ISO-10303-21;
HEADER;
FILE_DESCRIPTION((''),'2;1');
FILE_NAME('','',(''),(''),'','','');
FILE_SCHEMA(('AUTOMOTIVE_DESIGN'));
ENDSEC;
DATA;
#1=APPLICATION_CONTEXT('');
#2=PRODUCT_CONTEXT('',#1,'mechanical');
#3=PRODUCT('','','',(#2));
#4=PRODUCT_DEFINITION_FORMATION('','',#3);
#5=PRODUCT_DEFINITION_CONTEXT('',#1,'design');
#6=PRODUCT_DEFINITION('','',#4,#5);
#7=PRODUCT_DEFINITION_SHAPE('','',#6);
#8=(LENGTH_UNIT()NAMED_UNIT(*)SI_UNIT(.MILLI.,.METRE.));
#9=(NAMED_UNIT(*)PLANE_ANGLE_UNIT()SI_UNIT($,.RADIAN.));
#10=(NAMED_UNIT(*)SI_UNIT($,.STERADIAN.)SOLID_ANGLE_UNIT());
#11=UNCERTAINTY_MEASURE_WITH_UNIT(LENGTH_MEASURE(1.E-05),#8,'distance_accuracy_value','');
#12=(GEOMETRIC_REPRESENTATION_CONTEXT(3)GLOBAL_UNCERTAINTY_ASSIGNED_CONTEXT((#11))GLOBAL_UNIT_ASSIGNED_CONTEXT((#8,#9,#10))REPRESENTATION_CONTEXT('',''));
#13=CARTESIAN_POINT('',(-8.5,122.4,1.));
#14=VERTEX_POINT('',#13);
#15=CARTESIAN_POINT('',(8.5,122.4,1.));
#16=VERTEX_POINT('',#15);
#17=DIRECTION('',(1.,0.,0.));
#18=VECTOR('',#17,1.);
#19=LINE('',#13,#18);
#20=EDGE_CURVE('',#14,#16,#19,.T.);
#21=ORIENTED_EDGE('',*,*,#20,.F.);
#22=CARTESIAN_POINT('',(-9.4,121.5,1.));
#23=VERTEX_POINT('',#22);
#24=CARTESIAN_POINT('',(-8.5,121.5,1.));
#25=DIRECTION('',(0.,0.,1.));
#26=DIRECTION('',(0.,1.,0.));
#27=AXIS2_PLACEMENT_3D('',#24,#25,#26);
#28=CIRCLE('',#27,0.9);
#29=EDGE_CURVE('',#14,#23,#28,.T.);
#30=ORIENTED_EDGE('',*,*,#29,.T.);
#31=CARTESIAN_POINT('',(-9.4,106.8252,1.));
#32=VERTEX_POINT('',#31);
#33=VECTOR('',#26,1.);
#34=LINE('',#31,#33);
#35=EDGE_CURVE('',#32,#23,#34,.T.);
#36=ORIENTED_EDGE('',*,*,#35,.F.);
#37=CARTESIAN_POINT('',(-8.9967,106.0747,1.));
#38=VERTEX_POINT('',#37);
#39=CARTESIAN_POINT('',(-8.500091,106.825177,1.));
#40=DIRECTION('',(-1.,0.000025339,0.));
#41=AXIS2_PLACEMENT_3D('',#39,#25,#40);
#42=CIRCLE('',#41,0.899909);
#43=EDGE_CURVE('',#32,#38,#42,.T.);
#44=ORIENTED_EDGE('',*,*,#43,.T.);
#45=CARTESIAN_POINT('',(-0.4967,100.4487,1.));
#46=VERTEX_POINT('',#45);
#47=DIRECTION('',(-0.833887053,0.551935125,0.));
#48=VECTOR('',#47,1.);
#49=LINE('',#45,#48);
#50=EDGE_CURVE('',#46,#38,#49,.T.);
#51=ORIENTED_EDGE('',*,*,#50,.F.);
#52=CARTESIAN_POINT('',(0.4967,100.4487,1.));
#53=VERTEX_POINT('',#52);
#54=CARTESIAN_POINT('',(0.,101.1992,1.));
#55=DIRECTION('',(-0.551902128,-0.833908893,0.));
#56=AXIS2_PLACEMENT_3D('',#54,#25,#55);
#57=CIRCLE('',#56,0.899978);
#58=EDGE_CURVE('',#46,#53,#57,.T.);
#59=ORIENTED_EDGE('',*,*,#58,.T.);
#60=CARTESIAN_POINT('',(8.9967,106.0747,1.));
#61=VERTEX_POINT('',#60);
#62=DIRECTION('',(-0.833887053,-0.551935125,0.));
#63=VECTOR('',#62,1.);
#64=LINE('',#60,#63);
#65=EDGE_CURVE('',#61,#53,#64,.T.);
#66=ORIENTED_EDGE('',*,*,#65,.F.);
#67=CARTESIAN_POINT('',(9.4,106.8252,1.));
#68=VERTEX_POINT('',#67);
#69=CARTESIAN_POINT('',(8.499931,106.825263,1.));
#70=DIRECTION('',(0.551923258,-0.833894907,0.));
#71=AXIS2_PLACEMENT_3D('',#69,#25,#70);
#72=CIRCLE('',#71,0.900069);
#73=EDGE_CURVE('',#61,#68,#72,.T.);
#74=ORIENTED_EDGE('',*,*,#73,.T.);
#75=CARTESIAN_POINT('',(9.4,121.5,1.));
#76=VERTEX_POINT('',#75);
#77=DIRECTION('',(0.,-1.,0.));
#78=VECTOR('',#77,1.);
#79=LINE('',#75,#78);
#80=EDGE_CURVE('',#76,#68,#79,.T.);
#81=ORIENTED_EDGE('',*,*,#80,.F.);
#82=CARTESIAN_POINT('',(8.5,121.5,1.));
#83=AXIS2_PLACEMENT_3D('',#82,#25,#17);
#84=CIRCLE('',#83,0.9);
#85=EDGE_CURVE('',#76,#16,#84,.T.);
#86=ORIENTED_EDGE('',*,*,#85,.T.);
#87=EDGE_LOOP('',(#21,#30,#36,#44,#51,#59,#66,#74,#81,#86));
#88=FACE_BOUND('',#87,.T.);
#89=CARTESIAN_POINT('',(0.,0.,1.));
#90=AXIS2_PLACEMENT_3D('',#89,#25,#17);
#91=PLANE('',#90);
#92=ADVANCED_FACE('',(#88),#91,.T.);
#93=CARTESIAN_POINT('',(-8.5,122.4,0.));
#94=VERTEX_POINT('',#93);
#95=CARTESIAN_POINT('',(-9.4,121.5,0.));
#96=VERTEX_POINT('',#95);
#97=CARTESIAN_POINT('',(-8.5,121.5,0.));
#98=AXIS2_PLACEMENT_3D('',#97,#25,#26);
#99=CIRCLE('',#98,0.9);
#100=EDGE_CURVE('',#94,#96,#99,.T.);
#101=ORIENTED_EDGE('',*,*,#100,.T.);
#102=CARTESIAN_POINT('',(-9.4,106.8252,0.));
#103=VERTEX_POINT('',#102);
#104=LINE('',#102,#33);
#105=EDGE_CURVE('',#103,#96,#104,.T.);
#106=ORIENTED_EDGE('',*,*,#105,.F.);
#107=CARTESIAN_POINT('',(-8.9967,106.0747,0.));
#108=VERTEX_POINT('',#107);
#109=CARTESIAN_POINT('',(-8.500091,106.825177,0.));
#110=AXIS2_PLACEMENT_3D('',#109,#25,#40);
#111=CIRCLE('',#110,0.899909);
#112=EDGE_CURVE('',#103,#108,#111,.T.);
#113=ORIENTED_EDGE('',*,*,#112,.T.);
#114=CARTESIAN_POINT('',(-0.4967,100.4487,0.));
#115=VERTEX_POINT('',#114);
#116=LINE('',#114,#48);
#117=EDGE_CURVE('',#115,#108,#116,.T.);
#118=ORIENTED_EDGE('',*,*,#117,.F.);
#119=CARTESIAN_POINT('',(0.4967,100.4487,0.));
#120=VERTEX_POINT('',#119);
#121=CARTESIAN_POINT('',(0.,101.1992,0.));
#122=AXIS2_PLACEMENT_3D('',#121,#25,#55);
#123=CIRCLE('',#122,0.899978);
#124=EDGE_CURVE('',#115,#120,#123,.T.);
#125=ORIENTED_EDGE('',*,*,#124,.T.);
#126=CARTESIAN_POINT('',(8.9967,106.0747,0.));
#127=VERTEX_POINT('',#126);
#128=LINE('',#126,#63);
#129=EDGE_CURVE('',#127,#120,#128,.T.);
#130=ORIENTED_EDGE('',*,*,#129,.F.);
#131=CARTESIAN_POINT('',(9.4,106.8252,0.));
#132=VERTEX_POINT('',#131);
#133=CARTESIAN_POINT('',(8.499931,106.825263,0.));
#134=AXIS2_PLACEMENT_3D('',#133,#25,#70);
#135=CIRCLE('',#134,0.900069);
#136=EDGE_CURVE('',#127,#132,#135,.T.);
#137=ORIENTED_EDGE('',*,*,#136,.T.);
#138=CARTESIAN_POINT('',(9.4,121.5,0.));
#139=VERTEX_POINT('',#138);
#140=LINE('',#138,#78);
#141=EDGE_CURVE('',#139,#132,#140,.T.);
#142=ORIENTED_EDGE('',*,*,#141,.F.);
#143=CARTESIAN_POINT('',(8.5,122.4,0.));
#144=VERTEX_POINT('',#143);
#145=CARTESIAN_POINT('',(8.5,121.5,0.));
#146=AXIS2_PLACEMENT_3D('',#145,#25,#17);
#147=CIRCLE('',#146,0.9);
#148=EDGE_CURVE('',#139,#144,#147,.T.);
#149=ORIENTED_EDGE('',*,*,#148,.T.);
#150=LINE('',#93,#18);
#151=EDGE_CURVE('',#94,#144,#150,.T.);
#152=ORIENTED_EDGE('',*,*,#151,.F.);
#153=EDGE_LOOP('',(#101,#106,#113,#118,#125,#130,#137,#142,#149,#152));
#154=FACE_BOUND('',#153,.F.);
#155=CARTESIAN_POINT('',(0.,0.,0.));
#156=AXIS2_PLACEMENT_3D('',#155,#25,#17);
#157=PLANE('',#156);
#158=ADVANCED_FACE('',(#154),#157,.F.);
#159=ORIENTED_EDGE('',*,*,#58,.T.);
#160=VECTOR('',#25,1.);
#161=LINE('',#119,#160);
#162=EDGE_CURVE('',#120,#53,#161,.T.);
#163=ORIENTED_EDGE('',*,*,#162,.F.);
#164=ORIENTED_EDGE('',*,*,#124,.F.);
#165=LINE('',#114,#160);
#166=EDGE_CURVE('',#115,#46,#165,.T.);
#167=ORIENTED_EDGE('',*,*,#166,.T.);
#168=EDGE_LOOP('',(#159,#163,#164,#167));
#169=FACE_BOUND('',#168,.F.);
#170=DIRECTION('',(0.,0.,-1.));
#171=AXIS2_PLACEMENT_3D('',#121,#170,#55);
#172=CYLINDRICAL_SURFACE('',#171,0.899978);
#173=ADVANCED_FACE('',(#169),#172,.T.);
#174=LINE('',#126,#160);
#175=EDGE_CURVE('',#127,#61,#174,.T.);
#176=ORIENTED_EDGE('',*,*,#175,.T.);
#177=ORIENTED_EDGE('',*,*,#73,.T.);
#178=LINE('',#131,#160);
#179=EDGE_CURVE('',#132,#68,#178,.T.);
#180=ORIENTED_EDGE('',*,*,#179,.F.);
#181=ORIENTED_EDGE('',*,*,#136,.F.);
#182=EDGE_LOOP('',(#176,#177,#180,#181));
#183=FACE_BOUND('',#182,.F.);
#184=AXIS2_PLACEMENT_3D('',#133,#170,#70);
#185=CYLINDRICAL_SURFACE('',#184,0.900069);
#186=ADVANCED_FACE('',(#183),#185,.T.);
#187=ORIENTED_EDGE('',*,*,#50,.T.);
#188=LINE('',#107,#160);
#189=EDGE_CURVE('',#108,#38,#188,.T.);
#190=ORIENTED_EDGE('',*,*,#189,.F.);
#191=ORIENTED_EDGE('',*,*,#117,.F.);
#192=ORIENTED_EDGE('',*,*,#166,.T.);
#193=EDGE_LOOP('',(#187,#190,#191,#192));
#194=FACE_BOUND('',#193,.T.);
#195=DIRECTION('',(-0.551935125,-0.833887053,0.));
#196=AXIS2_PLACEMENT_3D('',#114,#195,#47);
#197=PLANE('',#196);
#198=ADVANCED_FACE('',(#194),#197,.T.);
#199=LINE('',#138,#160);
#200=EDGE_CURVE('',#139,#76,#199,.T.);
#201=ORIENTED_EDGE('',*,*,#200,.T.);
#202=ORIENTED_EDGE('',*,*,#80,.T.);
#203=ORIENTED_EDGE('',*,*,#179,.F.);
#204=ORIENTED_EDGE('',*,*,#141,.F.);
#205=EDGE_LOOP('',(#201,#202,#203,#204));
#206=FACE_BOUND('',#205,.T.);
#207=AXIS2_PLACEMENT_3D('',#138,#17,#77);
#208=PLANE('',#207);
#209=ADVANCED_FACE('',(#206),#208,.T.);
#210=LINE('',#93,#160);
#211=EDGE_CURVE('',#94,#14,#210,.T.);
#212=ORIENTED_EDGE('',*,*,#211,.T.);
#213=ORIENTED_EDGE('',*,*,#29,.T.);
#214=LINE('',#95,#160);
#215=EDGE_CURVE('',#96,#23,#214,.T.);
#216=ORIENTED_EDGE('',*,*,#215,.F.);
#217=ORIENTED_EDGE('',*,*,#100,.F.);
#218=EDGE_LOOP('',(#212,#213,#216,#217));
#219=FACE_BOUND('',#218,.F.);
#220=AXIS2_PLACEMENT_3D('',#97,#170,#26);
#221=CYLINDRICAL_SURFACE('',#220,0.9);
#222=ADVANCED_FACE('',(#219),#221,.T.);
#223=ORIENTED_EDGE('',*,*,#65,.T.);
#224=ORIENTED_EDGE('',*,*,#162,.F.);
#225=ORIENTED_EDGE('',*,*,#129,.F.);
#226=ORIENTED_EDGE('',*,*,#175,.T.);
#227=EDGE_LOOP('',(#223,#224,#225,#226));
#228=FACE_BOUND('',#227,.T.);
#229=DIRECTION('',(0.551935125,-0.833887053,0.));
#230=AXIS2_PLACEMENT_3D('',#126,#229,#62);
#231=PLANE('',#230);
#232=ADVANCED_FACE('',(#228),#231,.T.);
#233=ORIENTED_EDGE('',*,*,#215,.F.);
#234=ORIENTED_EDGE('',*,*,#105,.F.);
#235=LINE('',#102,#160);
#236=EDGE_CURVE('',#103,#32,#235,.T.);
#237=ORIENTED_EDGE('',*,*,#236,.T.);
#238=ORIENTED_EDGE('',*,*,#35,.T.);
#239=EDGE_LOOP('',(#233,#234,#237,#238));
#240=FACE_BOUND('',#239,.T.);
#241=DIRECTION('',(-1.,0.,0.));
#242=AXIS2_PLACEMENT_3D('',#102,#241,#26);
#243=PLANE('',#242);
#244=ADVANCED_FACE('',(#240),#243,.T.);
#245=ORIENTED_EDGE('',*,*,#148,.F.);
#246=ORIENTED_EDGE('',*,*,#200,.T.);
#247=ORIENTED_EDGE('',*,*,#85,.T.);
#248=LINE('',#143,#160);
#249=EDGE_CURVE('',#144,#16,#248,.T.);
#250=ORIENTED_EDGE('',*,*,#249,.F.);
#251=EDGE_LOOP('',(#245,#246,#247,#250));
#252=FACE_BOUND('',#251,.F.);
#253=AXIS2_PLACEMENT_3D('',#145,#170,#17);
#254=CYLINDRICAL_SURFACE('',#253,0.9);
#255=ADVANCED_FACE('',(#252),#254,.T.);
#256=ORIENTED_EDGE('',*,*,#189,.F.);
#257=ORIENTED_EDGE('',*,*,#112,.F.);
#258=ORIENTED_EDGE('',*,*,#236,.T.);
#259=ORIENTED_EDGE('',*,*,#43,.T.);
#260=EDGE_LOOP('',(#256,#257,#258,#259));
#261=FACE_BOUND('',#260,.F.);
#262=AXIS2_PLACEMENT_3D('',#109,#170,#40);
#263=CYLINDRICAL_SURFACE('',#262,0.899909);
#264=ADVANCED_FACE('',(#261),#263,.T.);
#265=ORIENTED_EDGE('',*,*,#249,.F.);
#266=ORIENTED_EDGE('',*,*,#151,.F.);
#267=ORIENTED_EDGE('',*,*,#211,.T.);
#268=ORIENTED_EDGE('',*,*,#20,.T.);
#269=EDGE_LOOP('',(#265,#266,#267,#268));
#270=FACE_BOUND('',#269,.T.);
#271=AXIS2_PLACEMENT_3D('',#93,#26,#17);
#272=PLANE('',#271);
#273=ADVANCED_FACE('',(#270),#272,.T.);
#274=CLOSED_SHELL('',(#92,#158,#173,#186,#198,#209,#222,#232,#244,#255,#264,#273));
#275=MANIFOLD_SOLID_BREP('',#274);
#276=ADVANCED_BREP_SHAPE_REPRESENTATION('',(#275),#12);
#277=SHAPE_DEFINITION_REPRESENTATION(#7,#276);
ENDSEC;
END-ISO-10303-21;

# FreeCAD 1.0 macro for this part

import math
import FreeCAD as App
import Part
import Sketcher
Q = App.Units.Quantity

doc = App.newDocument("Part")
body = doc.addObject("PartDesign::Body", "Body")

# Sketch on XY plane
sketch1 = body.newObject("Sketcher::SketchObject", "Sketch")
sketch1.AttachmentSupport = (doc.getObject("XY_Plane"), [""])
sketch1.MapMode = "FlatFace"
sketch1.addGeometry([
    Part.LineSegment(App.Vector(8.5, 122.4, 0), App.Vector(-8.5, 122.4, 0)),  # 0
    Part.ArcOfCircle(Part.Circle(App.Vector(-8.5, 121.5, 0), App.Vector(0, 0, 1), 0.9), math.radians(90), math.radians(180)),  # 1
    Part.LineSegment(App.Vector(-9.4, 121.5, 0), App.Vector(-9.4, 106.8, 0)),  # 2
    Part.ArcOfCircle(Part.Circle(App.Vector(-8.5, 106.8, 0), App.Vector(0, 0, 1), 0.9), math.radians(180), math.radians(237)),  # 3
    Part.LineSegment(App.Vector(-9, 106.1, 0), App.Vector(-0.5, 100.4, 0)),  # 4
    Part.ArcOfCircle(Part.Circle(App.Vector(0, 101.2, 0), App.Vector(0, 0, 1), 0.9), math.radians(-123), math.radians(-57)),  # 5
    Part.LineSegment(App.Vector(0.5, 100.4, 0), App.Vector(9, 106.1, 0)),  # 6
    Part.ArcOfCircle(Part.Circle(App.Vector(8.5, 106.8, 0), App.Vector(0, 0, 1), 0.9), math.radians(-57), math.radians(0)),  # 7
    Part.LineSegment(App.Vector(9.4, 106.8, 0), App.Vector(9.4, 121.5, 0)),  # 8
    Part.ArcOfCircle(Part.Circle(App.Vector(8.5, 121.5, 0), App.Vector(0, 0, 1), 0.9), math.radians(0), math.radians(90)),  # 9
], False)
sketch1.addConstraint([
    Sketcher.Constraint("Tangent", 0, 2, 1, 1),
    Sketcher.Constraint("Tangent", 1, 2, 2, 1),
    Sketcher.Constraint("Tangent", 2, 2, 3, 1),
    Sketcher.Constraint("Tangent", 3, 2, 4, 1),
    Sketcher.Constraint("Tangent", 4, 2, 5, 1),
    Sketcher.Constraint("Tangent", 5, 2, 6, 1),
    Sketcher.Constraint("Tangent", 6, 2, 7, 1),
    Sketcher.Constraint("Tangent", 7, 2, 8, 1),
    Sketcher.Constraint("Tangent", 8, 2, 9, 1),
    Sketcher.Constraint("Tangent", 9, 2, 0, 1),
    Sketcher.Constraint("Horizontal", 0),
    Sketcher.Constraint("Vertical", 2),
    Sketcher.Constraint("Vertical", 8),
    Sketcher.Constraint("Equal", 1, 3),
    Sketcher.Constraint("Equal", 3, 5),
    Sketcher.Constraint("Equal", 5, 7),
    Sketcher.Constraint("Equal", 7, 9),
    Sketcher.Constraint("Symmetric", 3, 3, 7, 3, -2),
    Sketcher.Constraint("PointOnObject", 5, 3, -2),
    Sketcher.Constraint("Radius", 1, 0.9),
    Sketcher.Constraint("DistanceX", 0, 2, 0, 1, 17.0),
    Sketcher.Constraint("Angle", 4, Q("-33.4999 deg")),
    Sketcher.Constraint("DistanceY", -1, 1, 1, 3, 121.5),
    Sketcher.Constraint("DistanceY", 2, 2, 2, 1, 14.6748),
])
pad1 = body.newObject("PartDesign::Pad", "Pad")
pad1.Profile = sketch1
pad1.Length = 1

doc.recompute()
